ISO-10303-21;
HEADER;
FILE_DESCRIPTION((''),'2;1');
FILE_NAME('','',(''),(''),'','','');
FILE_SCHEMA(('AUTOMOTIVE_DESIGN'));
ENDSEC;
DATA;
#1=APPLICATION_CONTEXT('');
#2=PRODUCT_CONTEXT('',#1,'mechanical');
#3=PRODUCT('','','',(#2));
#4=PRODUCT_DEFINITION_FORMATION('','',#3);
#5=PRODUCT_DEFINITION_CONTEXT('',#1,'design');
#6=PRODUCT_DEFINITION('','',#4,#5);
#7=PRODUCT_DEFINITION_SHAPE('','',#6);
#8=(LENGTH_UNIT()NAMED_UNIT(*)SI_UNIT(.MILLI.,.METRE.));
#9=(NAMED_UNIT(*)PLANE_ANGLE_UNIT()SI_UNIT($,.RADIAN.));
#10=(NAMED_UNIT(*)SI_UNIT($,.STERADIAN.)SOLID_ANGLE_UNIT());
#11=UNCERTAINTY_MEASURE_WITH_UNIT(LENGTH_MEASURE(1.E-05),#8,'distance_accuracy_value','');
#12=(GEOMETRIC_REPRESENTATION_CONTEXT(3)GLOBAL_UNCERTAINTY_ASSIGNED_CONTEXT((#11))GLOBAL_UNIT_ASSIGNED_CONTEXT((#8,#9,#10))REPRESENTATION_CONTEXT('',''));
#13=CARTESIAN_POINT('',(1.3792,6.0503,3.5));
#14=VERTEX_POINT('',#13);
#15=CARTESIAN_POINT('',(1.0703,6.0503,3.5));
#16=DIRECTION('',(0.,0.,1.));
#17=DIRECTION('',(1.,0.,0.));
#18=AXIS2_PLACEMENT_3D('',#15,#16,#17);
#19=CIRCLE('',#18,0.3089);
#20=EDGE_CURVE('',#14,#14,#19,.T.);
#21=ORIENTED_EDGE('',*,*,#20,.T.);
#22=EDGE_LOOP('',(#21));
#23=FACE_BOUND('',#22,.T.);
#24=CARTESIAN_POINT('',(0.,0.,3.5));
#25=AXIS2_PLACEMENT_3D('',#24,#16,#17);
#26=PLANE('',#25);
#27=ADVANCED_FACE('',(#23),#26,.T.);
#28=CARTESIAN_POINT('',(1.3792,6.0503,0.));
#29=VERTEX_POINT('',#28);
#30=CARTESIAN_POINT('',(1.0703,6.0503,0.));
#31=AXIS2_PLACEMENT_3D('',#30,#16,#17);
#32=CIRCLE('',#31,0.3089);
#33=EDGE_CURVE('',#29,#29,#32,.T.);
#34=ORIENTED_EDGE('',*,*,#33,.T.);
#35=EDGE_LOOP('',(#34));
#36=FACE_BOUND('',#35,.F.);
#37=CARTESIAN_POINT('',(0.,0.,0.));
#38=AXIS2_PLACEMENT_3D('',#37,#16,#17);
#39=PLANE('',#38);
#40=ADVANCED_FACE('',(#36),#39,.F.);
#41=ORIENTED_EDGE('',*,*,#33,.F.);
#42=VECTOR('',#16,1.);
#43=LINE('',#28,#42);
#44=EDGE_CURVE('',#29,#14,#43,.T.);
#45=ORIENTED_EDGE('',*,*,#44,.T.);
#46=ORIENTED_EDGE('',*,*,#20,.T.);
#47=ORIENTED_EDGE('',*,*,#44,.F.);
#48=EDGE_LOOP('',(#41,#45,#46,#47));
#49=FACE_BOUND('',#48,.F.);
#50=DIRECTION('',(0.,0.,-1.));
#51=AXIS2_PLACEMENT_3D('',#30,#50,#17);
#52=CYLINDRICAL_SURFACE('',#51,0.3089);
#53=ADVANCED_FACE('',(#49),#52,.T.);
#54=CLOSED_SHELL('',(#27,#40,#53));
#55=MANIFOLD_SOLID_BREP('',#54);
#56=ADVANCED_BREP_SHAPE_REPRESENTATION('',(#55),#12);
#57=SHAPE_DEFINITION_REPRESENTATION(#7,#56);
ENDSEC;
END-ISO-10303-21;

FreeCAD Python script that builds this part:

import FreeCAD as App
import Part
import Sketcher
from FreeCAD import Vector
Q = App.Units.Quantity

doc = App.newDocument("Part")
body = doc.addObject("PartDesign::Body", "Body")

sketch1 = body.newObject("Sketcher::SketchObject", "Sketch")
sketch1.AttachmentSupport = (doc.getObject("XY_Plane"), [""])
sketch1.MapMode = "FlatFace"
sketch1.addGeometry(Part.Circle(Vector(1.07, 6.05, 0), Vector(0, 0, 1), 0.31), False)
sketch1.addConstraint([
    Sketcher.Constraint("Diameter", 0, Q("0.6178 mm")),
    Sketcher.Constraint("DistanceX", -1, 1, 0, 3, Q("1.0703 mm")),
    Sketcher.Constraint("DistanceY", -1, 1, 0, 3, Q("6.0503 mm")),
])
pad1 = body.newObject("PartDesign::Pad", "Pad")
pad1.Profile = sketch1
pad1.Length = 3.5

doc.recompute()
